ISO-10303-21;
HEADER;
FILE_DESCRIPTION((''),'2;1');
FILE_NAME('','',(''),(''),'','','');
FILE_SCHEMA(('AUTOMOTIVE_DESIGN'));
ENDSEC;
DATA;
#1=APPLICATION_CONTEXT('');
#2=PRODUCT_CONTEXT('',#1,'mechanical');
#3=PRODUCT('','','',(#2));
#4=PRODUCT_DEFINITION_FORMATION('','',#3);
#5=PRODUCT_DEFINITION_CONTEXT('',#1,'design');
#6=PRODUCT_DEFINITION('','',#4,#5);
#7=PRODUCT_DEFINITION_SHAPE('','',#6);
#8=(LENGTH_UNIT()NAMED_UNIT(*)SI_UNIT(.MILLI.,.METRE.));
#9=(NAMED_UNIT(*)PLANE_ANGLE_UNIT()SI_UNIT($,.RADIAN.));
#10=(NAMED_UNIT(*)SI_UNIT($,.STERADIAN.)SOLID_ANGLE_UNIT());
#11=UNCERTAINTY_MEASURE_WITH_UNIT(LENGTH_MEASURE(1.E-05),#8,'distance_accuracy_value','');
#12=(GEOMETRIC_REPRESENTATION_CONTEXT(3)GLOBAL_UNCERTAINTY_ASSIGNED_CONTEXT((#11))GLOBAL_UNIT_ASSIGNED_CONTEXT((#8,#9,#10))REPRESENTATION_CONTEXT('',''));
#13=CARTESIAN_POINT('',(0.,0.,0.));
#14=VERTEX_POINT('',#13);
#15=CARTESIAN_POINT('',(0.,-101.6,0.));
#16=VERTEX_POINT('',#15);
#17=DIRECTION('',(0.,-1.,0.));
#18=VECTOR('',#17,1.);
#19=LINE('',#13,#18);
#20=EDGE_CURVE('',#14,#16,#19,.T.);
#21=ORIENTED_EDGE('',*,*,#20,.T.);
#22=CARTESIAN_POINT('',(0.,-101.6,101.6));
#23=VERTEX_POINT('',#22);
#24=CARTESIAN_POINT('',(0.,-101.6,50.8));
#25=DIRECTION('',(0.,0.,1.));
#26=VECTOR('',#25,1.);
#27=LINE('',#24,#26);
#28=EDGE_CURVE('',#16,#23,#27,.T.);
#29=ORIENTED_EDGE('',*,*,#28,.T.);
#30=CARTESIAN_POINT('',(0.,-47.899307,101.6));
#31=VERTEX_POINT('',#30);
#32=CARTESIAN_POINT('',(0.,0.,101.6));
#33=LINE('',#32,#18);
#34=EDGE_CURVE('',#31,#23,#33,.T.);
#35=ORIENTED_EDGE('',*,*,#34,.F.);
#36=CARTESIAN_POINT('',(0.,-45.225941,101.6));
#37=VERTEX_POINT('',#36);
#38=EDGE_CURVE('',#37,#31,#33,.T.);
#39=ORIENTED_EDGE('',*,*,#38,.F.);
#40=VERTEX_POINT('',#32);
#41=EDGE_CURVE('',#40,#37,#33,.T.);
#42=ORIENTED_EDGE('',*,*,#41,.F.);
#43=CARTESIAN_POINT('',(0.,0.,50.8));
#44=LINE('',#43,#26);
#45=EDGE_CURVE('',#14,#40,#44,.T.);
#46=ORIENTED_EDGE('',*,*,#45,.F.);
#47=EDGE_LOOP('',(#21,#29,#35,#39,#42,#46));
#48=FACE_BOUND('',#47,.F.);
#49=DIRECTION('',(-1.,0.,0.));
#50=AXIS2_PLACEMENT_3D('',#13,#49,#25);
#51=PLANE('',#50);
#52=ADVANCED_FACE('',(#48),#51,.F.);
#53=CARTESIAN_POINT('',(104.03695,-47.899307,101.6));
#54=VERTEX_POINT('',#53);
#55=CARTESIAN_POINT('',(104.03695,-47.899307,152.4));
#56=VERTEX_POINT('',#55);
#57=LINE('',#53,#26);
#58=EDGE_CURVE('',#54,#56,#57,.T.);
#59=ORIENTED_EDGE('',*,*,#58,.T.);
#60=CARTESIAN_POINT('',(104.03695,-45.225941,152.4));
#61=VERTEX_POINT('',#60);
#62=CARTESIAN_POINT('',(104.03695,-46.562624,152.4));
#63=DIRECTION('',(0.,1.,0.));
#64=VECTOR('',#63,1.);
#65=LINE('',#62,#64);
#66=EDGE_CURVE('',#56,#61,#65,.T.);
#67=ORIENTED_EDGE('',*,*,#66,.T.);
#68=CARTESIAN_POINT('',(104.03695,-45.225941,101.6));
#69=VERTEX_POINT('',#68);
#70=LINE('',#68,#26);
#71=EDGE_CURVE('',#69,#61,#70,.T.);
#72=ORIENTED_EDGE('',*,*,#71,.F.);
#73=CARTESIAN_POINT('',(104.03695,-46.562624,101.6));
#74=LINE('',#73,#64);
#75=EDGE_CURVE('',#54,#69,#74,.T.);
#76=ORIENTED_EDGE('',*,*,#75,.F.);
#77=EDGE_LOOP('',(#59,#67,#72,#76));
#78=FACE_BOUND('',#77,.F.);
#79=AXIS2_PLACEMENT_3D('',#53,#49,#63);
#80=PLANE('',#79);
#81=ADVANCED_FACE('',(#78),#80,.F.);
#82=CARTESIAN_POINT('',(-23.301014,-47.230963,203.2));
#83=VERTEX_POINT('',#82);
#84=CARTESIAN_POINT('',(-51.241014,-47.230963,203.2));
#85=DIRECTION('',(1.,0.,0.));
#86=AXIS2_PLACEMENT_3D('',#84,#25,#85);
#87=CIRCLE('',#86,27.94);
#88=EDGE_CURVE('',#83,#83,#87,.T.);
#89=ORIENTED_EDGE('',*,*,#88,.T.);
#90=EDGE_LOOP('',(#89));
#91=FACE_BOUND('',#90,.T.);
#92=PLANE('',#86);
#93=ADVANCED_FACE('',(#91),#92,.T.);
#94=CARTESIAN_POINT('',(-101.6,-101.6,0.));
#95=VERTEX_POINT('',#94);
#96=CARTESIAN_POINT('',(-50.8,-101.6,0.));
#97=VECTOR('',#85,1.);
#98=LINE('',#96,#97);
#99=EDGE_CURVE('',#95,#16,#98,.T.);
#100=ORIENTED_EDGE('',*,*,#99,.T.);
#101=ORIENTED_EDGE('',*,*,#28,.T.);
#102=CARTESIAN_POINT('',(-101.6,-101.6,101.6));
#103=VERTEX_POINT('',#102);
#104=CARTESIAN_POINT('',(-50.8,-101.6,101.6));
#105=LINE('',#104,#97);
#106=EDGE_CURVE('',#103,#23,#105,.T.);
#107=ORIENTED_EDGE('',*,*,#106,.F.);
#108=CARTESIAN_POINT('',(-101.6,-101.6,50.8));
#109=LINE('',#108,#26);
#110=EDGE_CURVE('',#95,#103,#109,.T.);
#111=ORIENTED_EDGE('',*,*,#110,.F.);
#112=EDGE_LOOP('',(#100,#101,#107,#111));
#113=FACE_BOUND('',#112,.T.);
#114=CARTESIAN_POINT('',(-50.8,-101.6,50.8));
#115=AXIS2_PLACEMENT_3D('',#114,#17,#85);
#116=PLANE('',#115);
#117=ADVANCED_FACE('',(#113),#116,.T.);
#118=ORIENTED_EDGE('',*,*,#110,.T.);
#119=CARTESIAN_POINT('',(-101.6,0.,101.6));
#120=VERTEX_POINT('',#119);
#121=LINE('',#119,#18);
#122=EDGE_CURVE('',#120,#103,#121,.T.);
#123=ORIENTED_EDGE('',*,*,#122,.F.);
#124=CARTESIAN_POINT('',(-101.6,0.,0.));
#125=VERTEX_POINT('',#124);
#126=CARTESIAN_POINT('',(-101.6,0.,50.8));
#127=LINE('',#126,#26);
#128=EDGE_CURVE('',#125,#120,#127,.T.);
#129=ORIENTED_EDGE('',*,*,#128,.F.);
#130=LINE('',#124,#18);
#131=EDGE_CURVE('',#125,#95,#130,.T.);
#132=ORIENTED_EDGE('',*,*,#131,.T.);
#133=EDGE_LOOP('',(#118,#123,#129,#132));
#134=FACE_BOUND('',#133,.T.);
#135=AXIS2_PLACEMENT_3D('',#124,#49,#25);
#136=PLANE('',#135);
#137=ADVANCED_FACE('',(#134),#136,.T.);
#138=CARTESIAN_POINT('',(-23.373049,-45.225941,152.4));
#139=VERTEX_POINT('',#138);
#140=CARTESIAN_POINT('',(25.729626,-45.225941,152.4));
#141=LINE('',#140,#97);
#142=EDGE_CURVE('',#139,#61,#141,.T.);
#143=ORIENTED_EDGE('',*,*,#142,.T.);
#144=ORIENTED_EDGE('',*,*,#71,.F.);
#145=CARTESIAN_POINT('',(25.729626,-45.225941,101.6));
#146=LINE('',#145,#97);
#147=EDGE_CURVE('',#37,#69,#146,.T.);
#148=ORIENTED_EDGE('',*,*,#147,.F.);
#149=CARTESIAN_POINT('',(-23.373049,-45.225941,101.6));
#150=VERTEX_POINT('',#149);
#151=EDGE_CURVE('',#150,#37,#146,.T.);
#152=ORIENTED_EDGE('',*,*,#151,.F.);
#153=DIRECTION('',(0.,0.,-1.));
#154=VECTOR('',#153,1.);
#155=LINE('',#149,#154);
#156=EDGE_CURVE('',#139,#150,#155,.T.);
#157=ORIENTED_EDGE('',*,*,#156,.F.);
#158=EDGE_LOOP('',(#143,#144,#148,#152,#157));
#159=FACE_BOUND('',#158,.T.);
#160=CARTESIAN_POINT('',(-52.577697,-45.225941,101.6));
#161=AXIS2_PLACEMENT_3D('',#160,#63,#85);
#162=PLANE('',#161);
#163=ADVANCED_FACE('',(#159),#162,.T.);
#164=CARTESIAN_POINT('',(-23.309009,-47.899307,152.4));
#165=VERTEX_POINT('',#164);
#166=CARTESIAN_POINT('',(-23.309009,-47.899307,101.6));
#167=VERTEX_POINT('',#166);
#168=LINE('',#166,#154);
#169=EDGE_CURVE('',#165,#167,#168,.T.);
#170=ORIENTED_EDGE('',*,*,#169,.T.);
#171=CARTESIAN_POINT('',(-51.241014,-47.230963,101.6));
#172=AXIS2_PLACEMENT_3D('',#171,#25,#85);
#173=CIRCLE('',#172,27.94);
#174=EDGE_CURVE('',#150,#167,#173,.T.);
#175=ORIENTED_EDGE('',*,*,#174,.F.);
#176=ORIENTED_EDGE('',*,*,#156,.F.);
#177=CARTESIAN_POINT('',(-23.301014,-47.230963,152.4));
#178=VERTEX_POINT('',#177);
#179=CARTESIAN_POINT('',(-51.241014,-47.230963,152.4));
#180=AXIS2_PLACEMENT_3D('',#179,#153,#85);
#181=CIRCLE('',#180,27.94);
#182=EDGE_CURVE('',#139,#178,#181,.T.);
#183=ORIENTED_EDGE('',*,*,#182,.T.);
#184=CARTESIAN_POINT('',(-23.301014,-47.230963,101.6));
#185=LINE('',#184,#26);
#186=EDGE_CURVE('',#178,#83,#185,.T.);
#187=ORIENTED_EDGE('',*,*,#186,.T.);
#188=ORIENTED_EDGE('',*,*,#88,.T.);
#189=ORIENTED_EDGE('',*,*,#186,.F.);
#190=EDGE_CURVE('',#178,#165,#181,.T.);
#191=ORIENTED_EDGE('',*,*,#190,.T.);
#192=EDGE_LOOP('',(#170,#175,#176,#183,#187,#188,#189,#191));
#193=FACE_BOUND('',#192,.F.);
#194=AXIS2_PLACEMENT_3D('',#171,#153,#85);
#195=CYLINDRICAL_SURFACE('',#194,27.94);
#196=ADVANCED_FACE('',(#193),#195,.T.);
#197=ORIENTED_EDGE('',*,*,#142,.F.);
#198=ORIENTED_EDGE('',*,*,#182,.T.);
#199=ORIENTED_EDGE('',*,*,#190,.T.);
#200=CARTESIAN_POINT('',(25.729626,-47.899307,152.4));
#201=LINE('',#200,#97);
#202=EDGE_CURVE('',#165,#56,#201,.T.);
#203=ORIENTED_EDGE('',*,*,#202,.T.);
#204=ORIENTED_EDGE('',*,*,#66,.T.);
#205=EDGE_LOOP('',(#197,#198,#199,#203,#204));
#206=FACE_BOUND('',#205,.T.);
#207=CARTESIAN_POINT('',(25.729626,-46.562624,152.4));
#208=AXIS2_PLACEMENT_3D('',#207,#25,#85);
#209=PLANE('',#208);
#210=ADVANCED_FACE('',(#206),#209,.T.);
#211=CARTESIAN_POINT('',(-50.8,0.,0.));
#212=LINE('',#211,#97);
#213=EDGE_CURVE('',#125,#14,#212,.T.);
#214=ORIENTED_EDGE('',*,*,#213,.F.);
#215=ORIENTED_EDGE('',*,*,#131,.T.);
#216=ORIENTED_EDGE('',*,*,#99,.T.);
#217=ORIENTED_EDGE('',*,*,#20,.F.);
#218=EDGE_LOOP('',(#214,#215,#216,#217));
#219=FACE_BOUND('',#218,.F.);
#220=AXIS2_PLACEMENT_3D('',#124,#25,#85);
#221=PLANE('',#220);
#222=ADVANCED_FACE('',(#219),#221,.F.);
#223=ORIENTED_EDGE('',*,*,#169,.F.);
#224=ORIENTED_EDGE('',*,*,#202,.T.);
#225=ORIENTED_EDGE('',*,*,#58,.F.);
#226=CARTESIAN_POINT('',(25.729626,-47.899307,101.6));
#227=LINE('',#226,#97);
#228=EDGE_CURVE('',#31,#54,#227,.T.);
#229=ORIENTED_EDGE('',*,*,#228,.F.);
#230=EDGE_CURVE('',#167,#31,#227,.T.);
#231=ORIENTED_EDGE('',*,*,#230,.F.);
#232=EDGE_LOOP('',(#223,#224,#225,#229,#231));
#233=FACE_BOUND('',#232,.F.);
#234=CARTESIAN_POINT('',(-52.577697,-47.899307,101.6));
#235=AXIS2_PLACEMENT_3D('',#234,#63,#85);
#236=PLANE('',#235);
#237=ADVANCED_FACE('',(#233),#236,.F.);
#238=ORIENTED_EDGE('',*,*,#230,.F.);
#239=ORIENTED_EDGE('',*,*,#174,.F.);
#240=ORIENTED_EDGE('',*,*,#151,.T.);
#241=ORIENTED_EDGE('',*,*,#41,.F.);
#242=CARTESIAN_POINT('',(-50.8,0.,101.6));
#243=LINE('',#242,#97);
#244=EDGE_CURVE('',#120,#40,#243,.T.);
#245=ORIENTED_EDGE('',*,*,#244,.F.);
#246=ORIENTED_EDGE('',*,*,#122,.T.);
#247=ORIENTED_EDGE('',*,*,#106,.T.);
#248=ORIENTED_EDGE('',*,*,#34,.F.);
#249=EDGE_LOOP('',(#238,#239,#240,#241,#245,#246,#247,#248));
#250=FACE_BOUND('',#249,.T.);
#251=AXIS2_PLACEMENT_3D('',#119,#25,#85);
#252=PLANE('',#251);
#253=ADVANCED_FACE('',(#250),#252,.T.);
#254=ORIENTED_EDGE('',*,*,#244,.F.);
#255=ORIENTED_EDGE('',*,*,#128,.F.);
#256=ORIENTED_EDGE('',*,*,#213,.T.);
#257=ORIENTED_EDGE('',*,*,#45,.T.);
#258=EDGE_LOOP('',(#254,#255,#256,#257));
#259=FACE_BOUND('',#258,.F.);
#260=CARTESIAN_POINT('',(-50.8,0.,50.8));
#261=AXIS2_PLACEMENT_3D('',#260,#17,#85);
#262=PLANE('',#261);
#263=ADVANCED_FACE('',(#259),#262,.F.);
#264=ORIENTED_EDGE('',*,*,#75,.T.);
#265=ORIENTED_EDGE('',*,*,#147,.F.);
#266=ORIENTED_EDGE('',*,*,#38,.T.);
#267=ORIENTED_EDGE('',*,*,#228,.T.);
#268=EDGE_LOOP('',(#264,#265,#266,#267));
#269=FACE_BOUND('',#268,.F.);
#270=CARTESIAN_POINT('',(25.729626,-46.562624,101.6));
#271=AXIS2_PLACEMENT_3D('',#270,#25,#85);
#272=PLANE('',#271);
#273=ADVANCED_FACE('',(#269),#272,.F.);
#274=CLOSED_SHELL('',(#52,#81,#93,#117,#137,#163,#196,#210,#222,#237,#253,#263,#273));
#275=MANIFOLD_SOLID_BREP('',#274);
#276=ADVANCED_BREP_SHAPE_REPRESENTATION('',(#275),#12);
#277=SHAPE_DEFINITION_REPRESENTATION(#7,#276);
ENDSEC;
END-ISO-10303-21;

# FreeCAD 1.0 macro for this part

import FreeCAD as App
import Part
import Sketcher
from FreeCAD import Vector
Q = App.Units.Quantity

doc = App.newDocument("Part")
body = doc.addObject("PartDesign::Body", "Body")

sketch1 = body.newObject("Sketcher::SketchObject", "Sketch")
sketch1.AttachmentSupport = (doc.getObject("XZ_Plane"), [""])
sketch1.MapMode = "FlatFace"
sketch1.addGeometry([
    Part.LineSegment(Vector(-101.6, 101.6, 0), Vector(-101.6, 0, 0)),
    Part.LineSegment(Vector(-101.6, 0, 0), Vector(0, 0, 0)),
    Part.LineSegment(Vector(0, 0, 0), Vector(0, 101.6, 0)),
    Part.LineSegment(Vector(0, 101.6, 0), Vector(-101.6, 101.6, 0)),
], False)
sketch1.addConstraint([
    Sketcher.Constraint("Coincident", 0, 2, 1, 1),
    Sketcher.Constraint("Coincident", 1, 2, 2, 1),
    Sketcher.Constraint("Coincident", 2, 2, 3, 1),
    Sketcher.Constraint("Coincident", 3, 2, 0, 1),
    Sketcher.Constraint("Vertical", 0),
    Sketcher.Constraint("Horizontal", 1),
    Sketcher.Constraint("Vertical", 2),
    Sketcher.Constraint("Horizontal", 3),
    Sketcher.Constraint("Coincident", 1, 2, -1, 1),
    Sketcher.Constraint("Equal", 3, 0),
    Sketcher.Constraint("DistanceX", 1, 1, 1, 2, Q("4 in")),
])
pad1 = body.newObject("PartDesign::Pad", "Pad")
pad1.Profile = sketch1
pad1.Length = Q("4 in")

sketch2 = body.newObject("Sketcher::SketchObject", "Sketch001")
sketch2.AttachmentSupport = (doc.getObject("XY_Plane"), [""])
sketch2.MapMode = "FlatFace"
sketch2.AttachmentOffset = App.Placement(Vector(0, 0, 4 * 25.4), App.Rotation())
sketch2.addGeometry(Part.Circle(Vector(-51.241014, -47.230963, 0), Vector(0, 0, 1), 27.94), False)
sketch2.addConstraint([
    Sketcher.Constraint("Diameter", 0, Q("2.2 in")),
    Sketcher.Constraint("DistanceX", 0, 3, -1, 1, Q("51.241014 mm")),
    Sketcher.Constraint("DistanceY", 0, 3, -1, 1, Q("47.230963 mm")),
])
pad2 = body.newObject("PartDesign::Pad", "Pad001")
pad2.Profile = sketch2
pad2.Length = Q("4 in")

sketch3 = body.newObject("Sketcher::SketchObject", "Sketch002")
sketch3.AttachmentSupport = (doc.getObject("XY_Plane"), [""])
sketch3.MapMode = "FlatFace"
sketch3.AttachmentOffset = App.Placement(Vector(0, 0, 4 * 25.4), App.Rotation())
sketch3.addGeometry([
    Part.LineSegment(Vector(-52.577697, -45.225941, 0), Vector(-52.577697, -47.899307, 0)),
    Part.LineSegment(Vector(-52.577697, -47.899307, 0), Vector(104.03695, -47.899307, 0)),
    Part.LineSegment(Vector(104.03695, -47.899307, 0), Vector(104.03695, -45.225941, 0)),
    Part.LineSegment(Vector(104.03695, -45.225941, 0), Vector(-52.577697, -45.225941, 0)),
], False)
sketch3.addConstraint([
    Sketcher.Constraint("Coincident", 0, 2, 1, 1),
    Sketcher.Constraint("Coincident", 1, 2, 2, 1),
    Sketcher.Constraint("Coincident", 2, 2, 3, 1),
    Sketcher.Constraint("Coincident", 3, 2, 0, 1),
    Sketcher.Constraint("Vertical", 0),
    Sketcher.Constraint("Horizontal", 1),
    Sketcher.Constraint("Vertical", 2),
    Sketcher.Constraint("Horizontal", 3),
    Sketcher.Constraint("DistanceX", 1, 1, 1, 2, Q("156.614647 mm")),
    Sketcher.Constraint("DistanceY", 0, 2, 0, 1, Q("2.673365 mm")),
    Sketcher.Constraint("DistanceX", -1, 1, 1, 2, Q("104.03695 mm")),
    Sketcher.Constraint("DistanceY", 2, 2, -1, 1, Q("45.225941 mm")),
])
pad3 = body.newObject("PartDesign::Pad", "Pad002")
pad3.Profile = sketch3
pad3.Length = Q("2 in")

doc.recompute()
